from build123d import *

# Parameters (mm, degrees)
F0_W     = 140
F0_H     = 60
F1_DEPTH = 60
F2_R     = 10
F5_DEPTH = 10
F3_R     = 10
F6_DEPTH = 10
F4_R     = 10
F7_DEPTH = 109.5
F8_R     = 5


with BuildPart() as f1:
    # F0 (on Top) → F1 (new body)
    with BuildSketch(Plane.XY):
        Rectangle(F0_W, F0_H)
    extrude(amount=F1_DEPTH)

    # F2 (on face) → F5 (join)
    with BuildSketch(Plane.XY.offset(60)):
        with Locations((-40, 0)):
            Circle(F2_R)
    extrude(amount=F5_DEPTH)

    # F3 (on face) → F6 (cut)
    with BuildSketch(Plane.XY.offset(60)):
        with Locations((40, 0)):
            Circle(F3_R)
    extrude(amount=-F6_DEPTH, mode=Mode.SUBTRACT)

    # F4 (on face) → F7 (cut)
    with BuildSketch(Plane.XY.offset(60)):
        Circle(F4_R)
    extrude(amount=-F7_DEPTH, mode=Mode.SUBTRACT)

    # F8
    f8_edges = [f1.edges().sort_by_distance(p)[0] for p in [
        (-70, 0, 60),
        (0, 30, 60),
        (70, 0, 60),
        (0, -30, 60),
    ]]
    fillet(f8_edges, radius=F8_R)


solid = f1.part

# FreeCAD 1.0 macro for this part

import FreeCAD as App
import Part
import Sketcher


def edges_at(feature, points):
    """Names of the edges that pass closest to the given points."""
    edges = feature.Shape.Edges
    near = lambda p: min(range(len(edges)), key=lambda i: edges[i].distToShape(Part.Vertex(*p))[0])
    return sorted({f"Edge{near(p) + 1}" for p in points})


def add_polygon(sketch, points):
    """Adds a closed chain of lines whose ends are joined by coincident constraints."""
    first, n = sketch.GeometryCount, len(points)
    for a, b in zip(points, points[1:] + points[:1]):
        sketch.addGeometry(Part.LineSegment(App.Vector(*a, 0), App.Vector(*b, 0)), False)
    for i in range(n):
        sketch.addConstraint(Sketcher.Constraint("Coincident", first + i, 2, first + (i + 1) % n, 1))

doc = App.newDocument("Part")
body = doc.addObject("PartDesign::Body", "Body")

sketch1 = body.newObject("Sketcher::SketchObject", "Sketch")
sketch1.AttachmentSupport = (doc.getObject("XY_Plane"), [""])
sketch1.MapMode = "FlatFace"
add_polygon(sketch1, [(-70, 30), (-70, -30), (70, -30), (70, 30)])
sketch1.addConstraint(Sketcher.Constraint("Vertical", 0))
sketch1.addConstraint(Sketcher.Constraint("Horizontal", 1))
sketch1.addConstraint(Sketcher.Constraint("Vertical", 2))
sketch1.addConstraint(Sketcher.Constraint("Horizontal", 3))
sketch1.addConstraint(Sketcher.Constraint("Symmetric", 0, 2, 2, 2, -1, 1))
sketch1.addConstraint(Sketcher.Constraint("DistanceX", 1, 1, 1, 2, 140.0))
sketch1.addConstraint(Sketcher.Constraint("DistanceY", 0, 2, 0, 1, 60.0))
pad1 = body.newObject("PartDesign::Pad", "Pad")
pad1.Profile = sketch1
pad1.Length = 60

sketch2 = body.newObject("Sketcher::SketchObject", "Sketch001")
sketch2.AttachmentSupport = (doc.getObject("XY_Plane"), [""])
sketch2.MapMode = "FlatFace"
sketch2.AttachmentOffset = App.Placement(App.Vector(0, 0, 60), App.Rotation())
sketch2.addGeometry(Part.Circle(App.Vector(-40, 0, 0), App.Vector(0, 0, 1), 10), False)
sketch2.addConstraint(Sketcher.Constraint("PointOnObject", 0, 3, -1))
sketch2.addConstraint(Sketcher.Constraint("Diameter", 0, 20.0))
sketch2.addConstraint(Sketcher.Constraint("DistanceX", 0, 3, -1, 1, 40.0))
pad2 = body.newObject("PartDesign::Pad", "Pad001")
pad2.Profile = sketch2
pad2.Length = 10

sketch3 = body.newObject("Sketcher::SketchObject", "Sketch002")
sketch3.AttachmentSupport = (doc.getObject("XY_Plane"), [""])
sketch3.MapMode = "FlatFace"
sketch3.AttachmentOffset = App.Placement(App.Vector(0, 0, 60), App.Rotation())
sketch3.addGeometry(Part.Circle(App.Vector(40, 0, 0), App.Vector(0, 0, 1), 10), False)
sketch3.addConstraint(Sketcher.Constraint("PointOnObject", 0, 3, -1))
sketch3.addConstraint(Sketcher.Constraint("Diameter", 0, 20.0))
sketch3.addConstraint(Sketcher.Constraint("DistanceX", -1, 1, 0, 3, 40.0))
pocket1 = body.newObject("PartDesign::Pocket", "Pocket")
pocket1.Profile = sketch3
pocket1.Length = 10

sketch4 = body.newObject("Sketcher::SketchObject", "Sketch003")
sketch4.AttachmentSupport = (doc.getObject("XY_Plane"), [""])
sketch4.MapMode = "FlatFace"
sketch4.AttachmentOffset = App.Placement(App.Vector(0, 0, 60), App.Rotation())
sketch4.addGeometry(Part.Circle(App.Vector(0, 0, 0), App.Vector(0, 0, 1), 10), False)
sketch4.addConstraint(Sketcher.Constraint("Coincident", 0, 3, -1, 1))
sketch4.addConstraint(Sketcher.Constraint("Diameter", 0, 20.0))
pocket2 = body.newObject("PartDesign::Pocket", "Pocket001")
pocket2.Profile = sketch4
pocket2.Length = 109.5
doc.recompute()

fillet = body.newObject("PartDesign::Fillet", "Fillet")
fillet.Base = (pocket2, edges_at(pocket2, [
    (-70, 0, 60),
    (0, 30, 60),
    (70, 0, 60),
    (0, -30, 60),
]))
fillet.Radius = 5

doc.recompute()
